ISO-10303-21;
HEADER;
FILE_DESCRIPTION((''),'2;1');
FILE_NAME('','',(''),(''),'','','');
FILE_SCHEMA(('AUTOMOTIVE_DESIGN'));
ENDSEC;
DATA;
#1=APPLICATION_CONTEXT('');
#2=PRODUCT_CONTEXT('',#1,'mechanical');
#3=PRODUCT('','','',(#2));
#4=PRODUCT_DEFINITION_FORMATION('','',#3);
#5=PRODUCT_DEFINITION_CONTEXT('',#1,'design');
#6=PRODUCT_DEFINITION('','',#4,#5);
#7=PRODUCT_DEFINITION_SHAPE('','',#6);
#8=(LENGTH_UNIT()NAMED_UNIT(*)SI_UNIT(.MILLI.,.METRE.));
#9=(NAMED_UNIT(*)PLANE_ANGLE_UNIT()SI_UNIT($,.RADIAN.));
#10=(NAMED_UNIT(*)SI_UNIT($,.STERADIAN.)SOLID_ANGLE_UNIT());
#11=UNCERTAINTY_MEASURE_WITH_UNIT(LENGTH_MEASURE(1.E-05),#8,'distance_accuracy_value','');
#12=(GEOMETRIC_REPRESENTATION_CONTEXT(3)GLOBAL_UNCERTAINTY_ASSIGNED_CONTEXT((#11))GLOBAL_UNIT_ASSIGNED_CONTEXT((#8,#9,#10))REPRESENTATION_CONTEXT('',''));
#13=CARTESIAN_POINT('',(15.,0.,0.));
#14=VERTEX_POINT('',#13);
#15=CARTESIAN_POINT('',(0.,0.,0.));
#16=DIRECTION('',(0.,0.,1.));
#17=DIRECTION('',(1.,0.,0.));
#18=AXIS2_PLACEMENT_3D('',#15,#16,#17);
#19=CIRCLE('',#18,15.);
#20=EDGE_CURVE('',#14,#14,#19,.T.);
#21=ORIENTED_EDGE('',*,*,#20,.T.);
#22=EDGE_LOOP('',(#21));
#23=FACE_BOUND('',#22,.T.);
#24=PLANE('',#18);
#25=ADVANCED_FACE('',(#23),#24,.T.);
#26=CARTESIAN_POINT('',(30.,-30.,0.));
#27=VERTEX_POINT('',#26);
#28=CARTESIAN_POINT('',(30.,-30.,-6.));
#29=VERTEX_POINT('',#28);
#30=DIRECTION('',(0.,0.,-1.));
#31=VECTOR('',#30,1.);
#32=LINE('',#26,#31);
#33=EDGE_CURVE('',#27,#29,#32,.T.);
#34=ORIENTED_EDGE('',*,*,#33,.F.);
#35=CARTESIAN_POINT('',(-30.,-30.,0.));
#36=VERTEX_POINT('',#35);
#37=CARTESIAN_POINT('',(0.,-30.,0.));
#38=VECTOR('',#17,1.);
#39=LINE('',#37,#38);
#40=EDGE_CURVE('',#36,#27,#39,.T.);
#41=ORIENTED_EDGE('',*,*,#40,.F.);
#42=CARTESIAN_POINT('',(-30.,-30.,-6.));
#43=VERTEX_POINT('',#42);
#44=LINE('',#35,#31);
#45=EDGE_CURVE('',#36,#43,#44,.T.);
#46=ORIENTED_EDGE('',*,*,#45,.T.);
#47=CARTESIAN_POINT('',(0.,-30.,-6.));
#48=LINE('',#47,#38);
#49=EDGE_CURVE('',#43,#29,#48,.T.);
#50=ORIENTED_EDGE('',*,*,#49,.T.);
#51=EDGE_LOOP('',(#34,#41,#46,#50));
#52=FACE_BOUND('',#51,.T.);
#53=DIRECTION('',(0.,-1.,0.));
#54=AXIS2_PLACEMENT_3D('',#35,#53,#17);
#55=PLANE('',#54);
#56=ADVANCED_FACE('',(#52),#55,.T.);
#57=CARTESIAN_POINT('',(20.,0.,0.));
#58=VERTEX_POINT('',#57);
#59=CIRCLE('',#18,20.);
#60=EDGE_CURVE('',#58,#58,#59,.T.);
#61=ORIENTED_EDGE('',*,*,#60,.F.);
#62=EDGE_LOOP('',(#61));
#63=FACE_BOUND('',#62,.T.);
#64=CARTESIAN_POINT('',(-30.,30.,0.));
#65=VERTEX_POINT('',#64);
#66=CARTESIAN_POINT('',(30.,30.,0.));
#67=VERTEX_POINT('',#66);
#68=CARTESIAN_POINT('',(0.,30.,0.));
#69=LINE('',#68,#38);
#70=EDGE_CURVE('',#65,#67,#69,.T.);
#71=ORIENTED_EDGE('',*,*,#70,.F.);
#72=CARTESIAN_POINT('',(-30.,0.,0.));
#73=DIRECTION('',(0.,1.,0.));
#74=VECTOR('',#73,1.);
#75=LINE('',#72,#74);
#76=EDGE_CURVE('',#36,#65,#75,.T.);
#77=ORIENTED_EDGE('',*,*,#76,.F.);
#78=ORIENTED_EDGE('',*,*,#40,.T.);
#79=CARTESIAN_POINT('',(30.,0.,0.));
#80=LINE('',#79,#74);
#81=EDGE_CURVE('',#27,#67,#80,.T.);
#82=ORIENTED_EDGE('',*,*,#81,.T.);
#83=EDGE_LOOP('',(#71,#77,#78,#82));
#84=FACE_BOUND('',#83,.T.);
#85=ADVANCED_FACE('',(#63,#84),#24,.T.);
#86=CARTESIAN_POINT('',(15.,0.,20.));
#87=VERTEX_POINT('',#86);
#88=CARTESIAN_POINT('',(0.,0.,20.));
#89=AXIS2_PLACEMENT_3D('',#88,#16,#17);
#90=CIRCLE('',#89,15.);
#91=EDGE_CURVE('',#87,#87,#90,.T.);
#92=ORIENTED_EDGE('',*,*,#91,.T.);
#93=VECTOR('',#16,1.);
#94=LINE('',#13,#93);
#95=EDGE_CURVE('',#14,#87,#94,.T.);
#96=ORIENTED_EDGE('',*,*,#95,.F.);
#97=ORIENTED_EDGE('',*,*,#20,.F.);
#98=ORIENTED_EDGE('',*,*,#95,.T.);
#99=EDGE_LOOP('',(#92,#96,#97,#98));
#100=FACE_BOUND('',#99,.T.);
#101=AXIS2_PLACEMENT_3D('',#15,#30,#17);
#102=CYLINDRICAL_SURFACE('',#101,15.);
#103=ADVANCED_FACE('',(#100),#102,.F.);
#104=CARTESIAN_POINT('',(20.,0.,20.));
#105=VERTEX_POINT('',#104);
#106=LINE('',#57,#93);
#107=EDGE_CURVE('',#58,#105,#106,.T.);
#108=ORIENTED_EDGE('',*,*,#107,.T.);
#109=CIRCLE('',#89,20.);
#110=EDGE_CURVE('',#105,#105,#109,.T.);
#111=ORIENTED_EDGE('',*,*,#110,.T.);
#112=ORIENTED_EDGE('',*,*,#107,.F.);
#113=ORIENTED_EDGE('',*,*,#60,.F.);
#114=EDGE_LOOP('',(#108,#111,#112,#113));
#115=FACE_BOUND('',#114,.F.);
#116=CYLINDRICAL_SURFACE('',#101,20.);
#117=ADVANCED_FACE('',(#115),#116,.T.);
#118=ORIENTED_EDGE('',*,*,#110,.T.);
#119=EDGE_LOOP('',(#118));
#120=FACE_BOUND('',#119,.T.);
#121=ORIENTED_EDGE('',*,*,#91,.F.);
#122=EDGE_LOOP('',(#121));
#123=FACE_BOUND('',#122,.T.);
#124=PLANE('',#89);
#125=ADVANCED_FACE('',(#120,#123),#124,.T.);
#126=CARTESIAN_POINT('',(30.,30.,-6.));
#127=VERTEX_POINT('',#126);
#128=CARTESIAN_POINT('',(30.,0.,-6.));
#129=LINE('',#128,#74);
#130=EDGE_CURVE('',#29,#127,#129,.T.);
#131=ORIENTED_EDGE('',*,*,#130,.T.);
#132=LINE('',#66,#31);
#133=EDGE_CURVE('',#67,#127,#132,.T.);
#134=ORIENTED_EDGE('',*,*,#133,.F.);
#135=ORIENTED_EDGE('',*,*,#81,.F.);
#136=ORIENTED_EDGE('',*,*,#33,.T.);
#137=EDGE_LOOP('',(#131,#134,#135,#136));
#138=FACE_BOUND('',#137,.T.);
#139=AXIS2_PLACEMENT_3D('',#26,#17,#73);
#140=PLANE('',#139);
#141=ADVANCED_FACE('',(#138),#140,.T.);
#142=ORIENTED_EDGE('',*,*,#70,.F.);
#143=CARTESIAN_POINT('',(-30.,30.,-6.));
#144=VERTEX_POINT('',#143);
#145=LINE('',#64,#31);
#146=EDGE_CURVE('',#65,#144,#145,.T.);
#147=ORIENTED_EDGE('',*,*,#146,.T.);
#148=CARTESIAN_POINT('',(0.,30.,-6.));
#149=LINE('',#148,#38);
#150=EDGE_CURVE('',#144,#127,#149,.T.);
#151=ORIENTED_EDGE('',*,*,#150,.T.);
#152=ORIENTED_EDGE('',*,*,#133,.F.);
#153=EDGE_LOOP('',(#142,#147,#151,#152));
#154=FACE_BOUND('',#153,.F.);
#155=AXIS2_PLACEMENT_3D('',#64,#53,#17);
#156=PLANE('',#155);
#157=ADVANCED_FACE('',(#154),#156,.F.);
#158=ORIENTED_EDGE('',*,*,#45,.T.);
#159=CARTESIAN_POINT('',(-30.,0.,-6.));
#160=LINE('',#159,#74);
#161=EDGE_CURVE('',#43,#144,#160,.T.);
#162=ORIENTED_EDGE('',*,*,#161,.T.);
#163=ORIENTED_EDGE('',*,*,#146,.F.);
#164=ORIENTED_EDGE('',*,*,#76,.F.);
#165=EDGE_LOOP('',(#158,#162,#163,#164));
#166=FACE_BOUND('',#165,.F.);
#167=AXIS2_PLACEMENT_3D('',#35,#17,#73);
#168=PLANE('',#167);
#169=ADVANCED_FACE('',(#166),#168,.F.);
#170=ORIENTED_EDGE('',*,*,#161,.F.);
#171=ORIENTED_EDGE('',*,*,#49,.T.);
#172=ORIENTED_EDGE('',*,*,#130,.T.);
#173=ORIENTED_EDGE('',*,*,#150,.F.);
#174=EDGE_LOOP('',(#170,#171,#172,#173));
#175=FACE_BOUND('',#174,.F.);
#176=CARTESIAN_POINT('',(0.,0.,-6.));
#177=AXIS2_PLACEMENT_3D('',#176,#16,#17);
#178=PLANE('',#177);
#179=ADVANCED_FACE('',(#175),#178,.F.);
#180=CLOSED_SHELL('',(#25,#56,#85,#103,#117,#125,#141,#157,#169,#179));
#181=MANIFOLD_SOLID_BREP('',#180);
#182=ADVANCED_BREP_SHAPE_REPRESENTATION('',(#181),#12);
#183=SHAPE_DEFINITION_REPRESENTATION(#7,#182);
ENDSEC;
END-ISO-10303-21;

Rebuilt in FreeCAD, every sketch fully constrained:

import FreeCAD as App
import Part
import Sketcher

doc = App.newDocument("Part")
body = doc.addObject("PartDesign::Body", "Body")

# Sketch on XY plane
sketch1 = body.newObject("Sketcher::SketchObject", "Sketch")
sketch1.AttachmentSupport = (doc.getObject("XY_Plane"), [""])
sketch1.MapMode = "FlatFace"
sketch1.addGeometry([
    Part.LineSegment(App.Vector(-30, 30, 0), App.Vector(-30, -30, 0)),
    Part.LineSegment(App.Vector(-30, -30, 0), App.Vector(30, -30, 0)),
    Part.LineSegment(App.Vector(30, -30, 0), App.Vector(30, 30, 0)),
    Part.LineSegment(App.Vector(30, 30, 0), App.Vector(-30, 30, 0)),
], False)
sketch1.addConstraint([
    Sketcher.Constraint("Coincident", 0, 2, 1, 1),
    Sketcher.Constraint("Coincident", 1, 2, 2, 1),
    Sketcher.Constraint("Coincident", 2, 2, 3, 1),
    Sketcher.Constraint("Coincident", 3, 2, 0, 1),
    Sketcher.Constraint("Vertical", 0),
    Sketcher.Constraint("Horizontal", 1),
    Sketcher.Constraint("Vertical", 2),
    Sketcher.Constraint("Horizontal", 3),
    Sketcher.Constraint("Symmetric", 0, 2, 2, 2, -1, 1),
    Sketcher.Constraint("Equal", 3, 0),
    Sketcher.Constraint("DistanceX", 1, 1, 1, 2, 60.0),
])
pad1 = body.newObject("PartDesign::Pad", "Pad")
pad1.Profile = sketch1
pad1.Length = 6
pad1.Reversed = True

# Sketch on XY plane
sketch2 = body.newObject("Sketcher::SketchObject", "Sketch001")
sketch2.AttachmentSupport = (doc.getObject("XY_Plane"), [""])
sketch2.MapMode = "FlatFace"
sketch2.addGeometry([
    Part.Circle(App.Vector(0, 0, 0), App.Vector(0, 0, 1), 20),
    Part.Circle(App.Vector(0, 0, 0), App.Vector(0, 0, 1), 15),
], False)
sketch2.addConstraint([
    Sketcher.Constraint("Coincident", 0, 3, -1, 1),
    Sketcher.Constraint("Coincident", 1, 3, -1, 1),
    Sketcher.Constraint("Diameter", 0, 40.0),
    Sketcher.Constraint("Diameter", 1, 30.0),
])
pad2 = body.newObject("PartDesign::Pad", "Pad001")
pad2.Profile = sketch2
pad2.Length = 20

doc.recompute()
